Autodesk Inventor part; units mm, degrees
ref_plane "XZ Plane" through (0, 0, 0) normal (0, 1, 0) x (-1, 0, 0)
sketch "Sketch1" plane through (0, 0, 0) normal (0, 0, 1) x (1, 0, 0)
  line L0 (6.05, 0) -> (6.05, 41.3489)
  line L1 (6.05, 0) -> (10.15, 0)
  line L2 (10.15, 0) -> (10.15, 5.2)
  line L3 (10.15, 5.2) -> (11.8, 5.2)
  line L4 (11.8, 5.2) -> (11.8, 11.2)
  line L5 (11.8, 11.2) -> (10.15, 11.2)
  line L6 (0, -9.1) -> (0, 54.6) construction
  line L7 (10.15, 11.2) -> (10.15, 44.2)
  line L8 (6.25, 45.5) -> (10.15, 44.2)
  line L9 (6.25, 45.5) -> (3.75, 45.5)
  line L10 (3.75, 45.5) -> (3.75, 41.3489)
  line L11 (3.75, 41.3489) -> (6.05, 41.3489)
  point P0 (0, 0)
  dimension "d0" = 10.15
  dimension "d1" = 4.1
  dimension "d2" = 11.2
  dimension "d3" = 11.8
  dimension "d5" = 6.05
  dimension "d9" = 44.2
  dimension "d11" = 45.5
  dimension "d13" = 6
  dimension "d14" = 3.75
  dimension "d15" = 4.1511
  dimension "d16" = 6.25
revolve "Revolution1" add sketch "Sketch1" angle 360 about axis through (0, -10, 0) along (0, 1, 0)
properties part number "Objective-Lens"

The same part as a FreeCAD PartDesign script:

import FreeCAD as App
import Part
import Sketcher

doc = App.newDocument("Part")
body = doc.addObject("PartDesign::Body", "Body")

# Sketch on XY plane
sketch1 = body.newObject("Sketcher::SketchObject", "Sketch")
sketch1.AttachmentSupport = (doc.getObject("XY_Plane"), [""])
sketch1.MapMode = "FlatFace"
sketch1.addGeometry([
    Part.LineSegment(App.Vector(6, 41.3, 0), App.Vector(6, 0, 0)),  # 0
    Part.LineSegment(App.Vector(6, 0, 0), App.Vector(10.2, 0, 0)),  # 1
    Part.LineSegment(App.Vector(10.2, 0, 0), App.Vector(10.2, 5.2, 0)),  # 2
    Part.LineSegment(App.Vector(10.2, 5.2, 0), App.Vector(11.8, 5.2, 0)),  # 3
    Part.LineSegment(App.Vector(11.8, 5.2, 0), App.Vector(11.8, 11.2, 0)),  # 4
    Part.LineSegment(App.Vector(11.8, 11.2, 0), App.Vector(10.2, 11.2, 0)),  # 5
    Part.LineSegment(App.Vector(10.2, 11.2, 0), App.Vector(10.2, 44.2, 0)),  # 6
    Part.LineSegment(App.Vector(10.2, 44.2, 0), App.Vector(6.2, 45.5, 0)),  # 7
    Part.LineSegment(App.Vector(6.2, 45.5, 0), App.Vector(3.8, 45.5, 0)),  # 8
    Part.LineSegment(App.Vector(3.8, 45.5, 0), App.Vector(3.8, 41.3, 0)),  # 9
    Part.LineSegment(App.Vector(3.8, 41.3, 0), App.Vector(6, 41.3, 0)),  # 10
], False)
sketch1.addConstraint([
    Sketcher.Constraint("Coincident", 0, 2, 1, 1),
    Sketcher.Constraint("Coincident", 1, 2, 2, 1),
    Sketcher.Constraint("Coincident", 2, 2, 3, 1),
    Sketcher.Constraint("Coincident", 3, 2, 4, 1),
    Sketcher.Constraint("Coincident", 4, 2, 5, 1),
    Sketcher.Constraint("Coincident", 5, 2, 6, 1),
    Sketcher.Constraint("Coincident", 6, 2, 7, 1),
    Sketcher.Constraint("Coincident", 7, 2, 8, 1),
    Sketcher.Constraint("Coincident", 8, 2, 9, 1),
    Sketcher.Constraint("Coincident", 9, 2, 10, 1),
    Sketcher.Constraint("Coincident", 10, 2, 0, 1),
    Sketcher.Constraint("Vertical", 0),
    Sketcher.Constraint("Horizontal", 1),
    Sketcher.Constraint("Vertical", 2),
    Sketcher.Constraint("Horizontal", 3),
    Sketcher.Constraint("Vertical", 4),
    Sketcher.Constraint("Horizontal", 5),
    Sketcher.Constraint("Vertical", 6),
    Sketcher.Constraint("Horizontal", 8),
    Sketcher.Constraint("Vertical", 9),
    Sketcher.Constraint("Horizontal", 10),
    Sketcher.Constraint("PointOnObject", 0, 2, -1),
    Sketcher.Constraint("Vertical", 2, 2, 5, 2),
    Sketcher.Constraint("DistanceY", 4, 1, 4, 2, 6.0),
    Sketcher.Constraint("DistanceX", 1, 1, 1, 2, 4.1),
    Sketcher.Constraint("DistanceX", -1, 1, 3, 2, 11.8),
    Sketcher.Constraint("DistanceY", -1, 1, 4, 2, 11.2),
    Sketcher.Constraint("DistanceY", -1, 1, 6, 2, 44.2),
    Sketcher.Constraint("DistanceY", -1, 1, 7, 2, 45.5),
    Sketcher.Constraint("DistanceY", 9, 2, 9, 1, 4.151),
    Sketcher.Constraint("DistanceX", -1, 1, 0, 2, 6.05),
    Sketcher.Constraint("DistanceX", -1, 1, 7, 2, 6.25),
    Sketcher.Constraint("DistanceX", -1, 1, 8, 2, 3.75),
])
revolution = body.newObject("PartDesign::Revolution", "Revolution")
revolution.Profile = sketch1
revolution.ReferenceAxis = (sketch1, ["V_Axis"])
revolution.Angle = 360

doc.recompute()
